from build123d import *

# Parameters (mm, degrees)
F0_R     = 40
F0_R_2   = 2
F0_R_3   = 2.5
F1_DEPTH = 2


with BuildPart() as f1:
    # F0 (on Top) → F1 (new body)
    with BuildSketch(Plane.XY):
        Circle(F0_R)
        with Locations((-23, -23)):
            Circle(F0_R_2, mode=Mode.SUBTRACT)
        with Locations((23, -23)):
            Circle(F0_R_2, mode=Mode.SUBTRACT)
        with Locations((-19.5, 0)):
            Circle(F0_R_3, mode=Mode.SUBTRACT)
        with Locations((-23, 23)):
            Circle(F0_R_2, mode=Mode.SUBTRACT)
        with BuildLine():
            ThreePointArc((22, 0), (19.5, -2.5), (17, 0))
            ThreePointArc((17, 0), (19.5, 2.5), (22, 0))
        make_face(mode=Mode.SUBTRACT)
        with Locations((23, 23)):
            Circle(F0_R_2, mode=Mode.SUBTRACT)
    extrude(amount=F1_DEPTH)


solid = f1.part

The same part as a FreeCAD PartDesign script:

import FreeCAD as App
import Part
import Sketcher

doc = App.newDocument("Part")
body = doc.addObject("PartDesign::Body", "Body")

sketch1 = body.newObject("Sketcher::SketchObject", "Sketch")
sketch1.AttachmentSupport = (doc.getObject("XY_Plane"), [""])
sketch1.MapMode = "FlatFace"
sketch1.addGeometry(Part.Circle(App.Vector(0, 0, 0), App.Vector(0, 0, 1), 40), False)
sketch1.addGeometry(Part.Circle(App.Vector(-23, -23, 0), App.Vector(0, 0, 1), 2), False)
sketch1.addGeometry(Part.Circle(App.Vector(23, -23, 0), App.Vector(0, 0, 1), 2), False)
sketch1.addGeometry(Part.Circle(App.Vector(-19.5, 0, 0), App.Vector(0, 0, 1), 2.5), False)
sketch1.addGeometry(Part.Circle(App.Vector(-23, 23, 0), App.Vector(0, 0, 1), 2), False)
sketch1.addGeometry(Part.Circle(App.Vector(19.5, 0, 0), App.Vector(0, 0, 1), 2.5), False)
sketch1.addGeometry(Part.Circle(App.Vector(23, 23, 0), App.Vector(0, 0, 1), 2), False)
sketch1.addConstraint(Sketcher.Constraint("Coincident", 0, 3, -1, 1))
sketch1.addConstraint(Sketcher.Constraint("Equal", 1, 2))
sketch1.addConstraint(Sketcher.Constraint("Equal", 2, 4))
sketch1.addConstraint(Sketcher.Constraint("Equal", 3, 5))
sketch1.addConstraint(Sketcher.Constraint("Equal", 4, 6))
sketch1.addConstraint(Sketcher.Constraint("Symmetric", 2, 3, 4, 3, -1, 1))
sketch1.addConstraint(Sketcher.Constraint("Symmetric", 3, 3, 5, 3, -1, 1))
sketch1.addConstraint(Sketcher.Constraint("Symmetric", 1, 3, 6, 3, -1, 1))
sketch1.addConstraint(Sketcher.Constraint("Symmetric", 1, 3, 2, 3, -2))
sketch1.addConstraint(Sketcher.Constraint("PointOnObject", 3, 3, -1))
sketch1.addConstraint(Sketcher.Constraint("Diameter", 0, 80.0))
sketch1.addConstraint(Sketcher.Constraint("Diameter", 1, 4.0))
sketch1.addConstraint(Sketcher.Constraint("Diameter", 3, 5.0))
sketch1.addConstraint(Sketcher.Constraint("DistanceX", 1, 3, -1, 1, 23.0))
sketch1.addConstraint(Sketcher.Constraint("DistanceY", 1, 3, -1, 1, 23.0))
sketch1.addConstraint(Sketcher.Constraint("DistanceX", 3, 3, 5, 3, 39.0))
pad1 = body.newObject("PartDesign::Pad", "Pad")
pad1.Profile = sketch1
pad1.Length = 2

doc.recompute()
